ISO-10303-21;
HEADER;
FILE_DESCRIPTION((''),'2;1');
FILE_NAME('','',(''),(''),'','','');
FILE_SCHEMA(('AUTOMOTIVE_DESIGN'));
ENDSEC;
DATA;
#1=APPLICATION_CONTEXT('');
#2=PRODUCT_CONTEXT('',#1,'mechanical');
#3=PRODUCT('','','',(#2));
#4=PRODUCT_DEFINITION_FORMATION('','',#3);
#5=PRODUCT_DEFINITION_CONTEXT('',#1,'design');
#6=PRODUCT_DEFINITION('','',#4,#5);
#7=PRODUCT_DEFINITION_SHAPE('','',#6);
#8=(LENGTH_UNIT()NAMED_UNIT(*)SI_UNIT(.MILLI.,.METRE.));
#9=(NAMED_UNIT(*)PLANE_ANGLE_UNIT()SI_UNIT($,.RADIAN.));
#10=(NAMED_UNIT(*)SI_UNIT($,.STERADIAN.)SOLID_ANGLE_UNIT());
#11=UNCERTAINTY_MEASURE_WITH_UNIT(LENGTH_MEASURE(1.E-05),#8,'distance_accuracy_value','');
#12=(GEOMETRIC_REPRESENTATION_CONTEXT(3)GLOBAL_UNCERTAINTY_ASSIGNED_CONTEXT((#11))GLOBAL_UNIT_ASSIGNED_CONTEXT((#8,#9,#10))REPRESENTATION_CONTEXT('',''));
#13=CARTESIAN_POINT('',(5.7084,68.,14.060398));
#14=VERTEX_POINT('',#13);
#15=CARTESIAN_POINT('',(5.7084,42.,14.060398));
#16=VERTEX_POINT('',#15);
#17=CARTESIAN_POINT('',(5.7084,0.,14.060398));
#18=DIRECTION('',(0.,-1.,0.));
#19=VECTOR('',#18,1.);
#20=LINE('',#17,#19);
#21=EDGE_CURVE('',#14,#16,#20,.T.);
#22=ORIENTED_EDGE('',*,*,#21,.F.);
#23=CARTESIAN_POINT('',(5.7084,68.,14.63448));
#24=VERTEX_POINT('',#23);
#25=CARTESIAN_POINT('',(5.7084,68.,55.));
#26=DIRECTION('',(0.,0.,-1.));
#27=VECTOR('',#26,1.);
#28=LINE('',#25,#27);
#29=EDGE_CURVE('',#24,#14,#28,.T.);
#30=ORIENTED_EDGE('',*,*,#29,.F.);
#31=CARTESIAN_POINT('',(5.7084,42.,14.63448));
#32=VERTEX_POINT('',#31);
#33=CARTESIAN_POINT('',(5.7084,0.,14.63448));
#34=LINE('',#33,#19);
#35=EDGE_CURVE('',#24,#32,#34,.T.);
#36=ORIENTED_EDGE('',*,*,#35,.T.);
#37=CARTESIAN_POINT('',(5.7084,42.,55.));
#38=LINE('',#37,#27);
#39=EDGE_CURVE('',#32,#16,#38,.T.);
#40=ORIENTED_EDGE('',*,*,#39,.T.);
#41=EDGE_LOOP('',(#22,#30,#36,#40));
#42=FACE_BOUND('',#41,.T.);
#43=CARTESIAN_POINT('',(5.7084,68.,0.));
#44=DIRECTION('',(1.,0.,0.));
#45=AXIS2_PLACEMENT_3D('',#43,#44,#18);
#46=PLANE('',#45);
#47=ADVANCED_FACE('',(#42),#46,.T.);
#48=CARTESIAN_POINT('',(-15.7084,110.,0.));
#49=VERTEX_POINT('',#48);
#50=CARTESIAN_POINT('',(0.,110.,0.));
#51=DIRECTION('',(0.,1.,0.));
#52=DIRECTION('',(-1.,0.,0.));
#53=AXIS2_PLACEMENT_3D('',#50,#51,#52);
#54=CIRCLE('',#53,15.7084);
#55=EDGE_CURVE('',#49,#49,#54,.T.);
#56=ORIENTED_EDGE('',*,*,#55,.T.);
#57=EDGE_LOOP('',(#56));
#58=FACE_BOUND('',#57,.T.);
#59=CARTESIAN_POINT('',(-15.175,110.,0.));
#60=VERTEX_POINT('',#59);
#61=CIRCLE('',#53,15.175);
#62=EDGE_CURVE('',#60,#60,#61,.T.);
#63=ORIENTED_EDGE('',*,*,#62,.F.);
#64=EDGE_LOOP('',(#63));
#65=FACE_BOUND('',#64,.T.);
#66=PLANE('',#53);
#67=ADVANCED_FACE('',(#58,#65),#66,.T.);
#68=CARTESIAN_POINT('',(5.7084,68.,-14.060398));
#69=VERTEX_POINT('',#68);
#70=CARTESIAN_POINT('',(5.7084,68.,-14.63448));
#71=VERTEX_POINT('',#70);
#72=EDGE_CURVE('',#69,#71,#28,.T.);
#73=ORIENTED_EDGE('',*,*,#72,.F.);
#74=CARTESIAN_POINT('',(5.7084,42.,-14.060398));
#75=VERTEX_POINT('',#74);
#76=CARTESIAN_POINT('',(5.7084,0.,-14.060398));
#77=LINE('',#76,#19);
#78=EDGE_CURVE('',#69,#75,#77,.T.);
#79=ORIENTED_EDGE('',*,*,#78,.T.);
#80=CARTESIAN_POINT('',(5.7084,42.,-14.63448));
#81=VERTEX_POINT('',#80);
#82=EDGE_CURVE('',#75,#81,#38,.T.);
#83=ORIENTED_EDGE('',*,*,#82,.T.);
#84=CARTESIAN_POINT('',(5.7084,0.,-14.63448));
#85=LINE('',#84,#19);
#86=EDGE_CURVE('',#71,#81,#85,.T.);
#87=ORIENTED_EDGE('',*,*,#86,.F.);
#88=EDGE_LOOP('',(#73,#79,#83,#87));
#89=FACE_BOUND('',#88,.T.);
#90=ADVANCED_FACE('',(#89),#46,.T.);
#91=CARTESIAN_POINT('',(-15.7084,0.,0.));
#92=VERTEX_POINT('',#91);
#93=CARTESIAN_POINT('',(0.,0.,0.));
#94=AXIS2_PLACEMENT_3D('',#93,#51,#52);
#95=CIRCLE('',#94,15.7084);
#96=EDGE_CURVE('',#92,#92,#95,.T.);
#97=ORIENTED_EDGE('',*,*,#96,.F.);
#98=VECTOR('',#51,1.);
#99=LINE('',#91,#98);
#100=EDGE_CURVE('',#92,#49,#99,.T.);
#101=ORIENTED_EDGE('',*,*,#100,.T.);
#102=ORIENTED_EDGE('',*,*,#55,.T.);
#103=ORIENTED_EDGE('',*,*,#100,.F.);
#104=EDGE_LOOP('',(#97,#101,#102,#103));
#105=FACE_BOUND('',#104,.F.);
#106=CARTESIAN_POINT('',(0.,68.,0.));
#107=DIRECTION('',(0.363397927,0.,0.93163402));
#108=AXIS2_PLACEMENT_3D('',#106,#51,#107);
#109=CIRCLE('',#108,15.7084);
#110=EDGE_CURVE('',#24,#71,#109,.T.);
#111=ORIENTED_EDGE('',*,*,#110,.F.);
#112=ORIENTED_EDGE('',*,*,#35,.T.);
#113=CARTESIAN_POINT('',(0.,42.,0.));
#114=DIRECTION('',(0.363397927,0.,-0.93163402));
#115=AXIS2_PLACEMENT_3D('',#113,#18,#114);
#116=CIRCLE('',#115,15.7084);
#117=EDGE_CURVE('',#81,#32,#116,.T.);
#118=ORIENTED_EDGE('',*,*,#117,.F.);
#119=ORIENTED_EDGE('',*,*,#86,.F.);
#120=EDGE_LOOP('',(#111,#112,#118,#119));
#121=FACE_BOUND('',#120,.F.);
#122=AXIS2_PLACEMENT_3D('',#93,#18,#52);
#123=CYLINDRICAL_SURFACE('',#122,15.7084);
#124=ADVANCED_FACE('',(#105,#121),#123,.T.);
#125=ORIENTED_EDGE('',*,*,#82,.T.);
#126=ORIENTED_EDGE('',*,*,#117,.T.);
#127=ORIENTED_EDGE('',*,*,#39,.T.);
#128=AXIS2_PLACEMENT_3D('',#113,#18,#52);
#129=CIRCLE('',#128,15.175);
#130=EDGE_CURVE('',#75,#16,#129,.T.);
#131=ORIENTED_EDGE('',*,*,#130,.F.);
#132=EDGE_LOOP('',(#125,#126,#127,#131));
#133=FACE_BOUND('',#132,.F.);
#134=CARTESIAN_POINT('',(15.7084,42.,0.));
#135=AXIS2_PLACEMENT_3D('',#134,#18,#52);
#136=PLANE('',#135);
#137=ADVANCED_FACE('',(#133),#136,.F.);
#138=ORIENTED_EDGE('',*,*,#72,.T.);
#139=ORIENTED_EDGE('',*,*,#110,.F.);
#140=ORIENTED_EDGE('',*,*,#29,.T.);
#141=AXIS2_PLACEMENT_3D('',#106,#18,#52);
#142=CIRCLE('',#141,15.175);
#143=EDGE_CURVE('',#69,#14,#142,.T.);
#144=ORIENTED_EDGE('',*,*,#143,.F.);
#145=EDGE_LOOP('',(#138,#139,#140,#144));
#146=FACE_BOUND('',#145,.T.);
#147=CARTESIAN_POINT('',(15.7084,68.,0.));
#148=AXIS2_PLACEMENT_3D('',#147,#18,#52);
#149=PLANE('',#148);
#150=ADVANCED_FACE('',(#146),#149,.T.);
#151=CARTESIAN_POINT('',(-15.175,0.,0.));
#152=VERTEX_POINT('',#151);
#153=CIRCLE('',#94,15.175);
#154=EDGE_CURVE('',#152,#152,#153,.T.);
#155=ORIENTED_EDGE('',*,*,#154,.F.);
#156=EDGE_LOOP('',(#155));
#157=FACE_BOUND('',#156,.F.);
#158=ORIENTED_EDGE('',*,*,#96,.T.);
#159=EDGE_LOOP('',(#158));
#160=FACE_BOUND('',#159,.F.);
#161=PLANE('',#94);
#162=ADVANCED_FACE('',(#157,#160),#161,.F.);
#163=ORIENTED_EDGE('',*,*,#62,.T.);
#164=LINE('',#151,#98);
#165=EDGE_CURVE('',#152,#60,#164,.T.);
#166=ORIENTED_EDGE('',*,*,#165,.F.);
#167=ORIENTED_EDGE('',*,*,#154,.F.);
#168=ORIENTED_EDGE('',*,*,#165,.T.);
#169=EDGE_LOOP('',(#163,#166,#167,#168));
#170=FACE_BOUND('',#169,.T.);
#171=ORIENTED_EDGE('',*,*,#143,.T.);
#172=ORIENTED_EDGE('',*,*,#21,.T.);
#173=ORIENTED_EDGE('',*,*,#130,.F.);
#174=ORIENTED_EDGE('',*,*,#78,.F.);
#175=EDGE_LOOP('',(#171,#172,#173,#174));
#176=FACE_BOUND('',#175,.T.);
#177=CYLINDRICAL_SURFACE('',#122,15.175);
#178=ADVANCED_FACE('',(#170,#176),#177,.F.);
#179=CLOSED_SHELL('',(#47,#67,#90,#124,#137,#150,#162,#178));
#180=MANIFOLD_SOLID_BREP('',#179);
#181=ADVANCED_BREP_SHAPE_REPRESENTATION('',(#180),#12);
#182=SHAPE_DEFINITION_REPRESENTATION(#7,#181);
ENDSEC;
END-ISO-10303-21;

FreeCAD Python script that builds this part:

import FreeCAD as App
import Part
import Sketcher

V = App.Vector

doc = App.newDocument("Part")
body = doc.addObject("PartDesign::Body", "Body")

sketch1 = doc.addObject("Sketcher::SketchObject", "Sketch")
body.addObject(sketch1)
sketch1.AttachmentSupport = (doc.XZ_Plane, [""])
sketch1.MapMode = "FlatFace"
sketch1.addGeometry(Part.Circle(V(0, 0, 0), V(0, 0, 1), 16), False)
sketch1.addGeometry(Part.Circle(V(0, 0, 0), V(0, 0, 1), 15), False)
sketch1.addConstraint(Sketcher.Constraint("Coincident", 0, 3, -1, 1))
sketch1.addConstraint(Sketcher.Constraint("Coincident", 1, 3, -1, 1))
sketch1.addConstraint(Sketcher.Constraint("Diameter", 1, 30.35))
sketch1.addConstraint(Sketcher.Constraint("Diameter", 0, 31.4168))
pad1 = doc.addObject("PartDesign::Pad", "Pad")
body.addObject(pad1)
pad1.Profile = sketch1
pad1.Length = 110
pad1.Reversed = True

sketch2 = doc.addObject("Sketcher::SketchObject", "Sketch001")
body.addObject(sketch2)
sketch2.AttachmentSupport = (doc.XY_Plane, [""])
sketch2.MapMode = "FlatFace"
sketch2.addGeometry(Part.LineSegment(V(6, 42, 0), V(16, 42, 0)), False)
sketch2.addGeometry(Part.LineSegment(V(16, 42, 0), V(16, 68, 0)), False)
sketch2.addGeometry(Part.LineSegment(V(16, 68, 0), V(6, 68, 0)), False)
sketch2.addGeometry(Part.LineSegment(V(6, 68, 0), V(6, 42, 0)), False)
sketch2.addConstraint(Sketcher.Constraint("Coincident", 0, 2, 1, 1))
sketch2.addConstraint(Sketcher.Constraint("Coincident", 1, 2, 2, 1))
sketch2.addConstraint(Sketcher.Constraint("Coincident", 2, 2, 3, 1))
sketch2.addConstraint(Sketcher.Constraint("Coincident", 3, 2, 0, 1))
sketch2.addConstraint(Sketcher.Constraint("Horizontal", 0))
sketch2.addConstraint(Sketcher.Constraint("Vertical", 1))
sketch2.addConstraint(Sketcher.Constraint("Horizontal", 2))
sketch2.addConstraint(Sketcher.Constraint("Vertical", 3))
sketch2.addConstraint(Sketcher.Constraint("DistanceX", 0, 1, 0, 2, 10.0))
sketch2.addConstraint(Sketcher.Constraint("DistanceY", 1, 1, 1, 2, 26.0))
sketch2.addConstraint(Sketcher.Constraint("DistanceY", -1, 1, 0, 2, 42.0))
sketch2.addConstraint(Sketcher.Constraint("DistanceX", -1, 1, 0, 2, 15.7084))
pocket1 = doc.addObject("PartDesign::Pocket", "Pocket")
body.addObject(pocket1)
pocket1.Profile = sketch2
pocket1.Length = 110
pocket1.Midplane = True

doc.recompute()
